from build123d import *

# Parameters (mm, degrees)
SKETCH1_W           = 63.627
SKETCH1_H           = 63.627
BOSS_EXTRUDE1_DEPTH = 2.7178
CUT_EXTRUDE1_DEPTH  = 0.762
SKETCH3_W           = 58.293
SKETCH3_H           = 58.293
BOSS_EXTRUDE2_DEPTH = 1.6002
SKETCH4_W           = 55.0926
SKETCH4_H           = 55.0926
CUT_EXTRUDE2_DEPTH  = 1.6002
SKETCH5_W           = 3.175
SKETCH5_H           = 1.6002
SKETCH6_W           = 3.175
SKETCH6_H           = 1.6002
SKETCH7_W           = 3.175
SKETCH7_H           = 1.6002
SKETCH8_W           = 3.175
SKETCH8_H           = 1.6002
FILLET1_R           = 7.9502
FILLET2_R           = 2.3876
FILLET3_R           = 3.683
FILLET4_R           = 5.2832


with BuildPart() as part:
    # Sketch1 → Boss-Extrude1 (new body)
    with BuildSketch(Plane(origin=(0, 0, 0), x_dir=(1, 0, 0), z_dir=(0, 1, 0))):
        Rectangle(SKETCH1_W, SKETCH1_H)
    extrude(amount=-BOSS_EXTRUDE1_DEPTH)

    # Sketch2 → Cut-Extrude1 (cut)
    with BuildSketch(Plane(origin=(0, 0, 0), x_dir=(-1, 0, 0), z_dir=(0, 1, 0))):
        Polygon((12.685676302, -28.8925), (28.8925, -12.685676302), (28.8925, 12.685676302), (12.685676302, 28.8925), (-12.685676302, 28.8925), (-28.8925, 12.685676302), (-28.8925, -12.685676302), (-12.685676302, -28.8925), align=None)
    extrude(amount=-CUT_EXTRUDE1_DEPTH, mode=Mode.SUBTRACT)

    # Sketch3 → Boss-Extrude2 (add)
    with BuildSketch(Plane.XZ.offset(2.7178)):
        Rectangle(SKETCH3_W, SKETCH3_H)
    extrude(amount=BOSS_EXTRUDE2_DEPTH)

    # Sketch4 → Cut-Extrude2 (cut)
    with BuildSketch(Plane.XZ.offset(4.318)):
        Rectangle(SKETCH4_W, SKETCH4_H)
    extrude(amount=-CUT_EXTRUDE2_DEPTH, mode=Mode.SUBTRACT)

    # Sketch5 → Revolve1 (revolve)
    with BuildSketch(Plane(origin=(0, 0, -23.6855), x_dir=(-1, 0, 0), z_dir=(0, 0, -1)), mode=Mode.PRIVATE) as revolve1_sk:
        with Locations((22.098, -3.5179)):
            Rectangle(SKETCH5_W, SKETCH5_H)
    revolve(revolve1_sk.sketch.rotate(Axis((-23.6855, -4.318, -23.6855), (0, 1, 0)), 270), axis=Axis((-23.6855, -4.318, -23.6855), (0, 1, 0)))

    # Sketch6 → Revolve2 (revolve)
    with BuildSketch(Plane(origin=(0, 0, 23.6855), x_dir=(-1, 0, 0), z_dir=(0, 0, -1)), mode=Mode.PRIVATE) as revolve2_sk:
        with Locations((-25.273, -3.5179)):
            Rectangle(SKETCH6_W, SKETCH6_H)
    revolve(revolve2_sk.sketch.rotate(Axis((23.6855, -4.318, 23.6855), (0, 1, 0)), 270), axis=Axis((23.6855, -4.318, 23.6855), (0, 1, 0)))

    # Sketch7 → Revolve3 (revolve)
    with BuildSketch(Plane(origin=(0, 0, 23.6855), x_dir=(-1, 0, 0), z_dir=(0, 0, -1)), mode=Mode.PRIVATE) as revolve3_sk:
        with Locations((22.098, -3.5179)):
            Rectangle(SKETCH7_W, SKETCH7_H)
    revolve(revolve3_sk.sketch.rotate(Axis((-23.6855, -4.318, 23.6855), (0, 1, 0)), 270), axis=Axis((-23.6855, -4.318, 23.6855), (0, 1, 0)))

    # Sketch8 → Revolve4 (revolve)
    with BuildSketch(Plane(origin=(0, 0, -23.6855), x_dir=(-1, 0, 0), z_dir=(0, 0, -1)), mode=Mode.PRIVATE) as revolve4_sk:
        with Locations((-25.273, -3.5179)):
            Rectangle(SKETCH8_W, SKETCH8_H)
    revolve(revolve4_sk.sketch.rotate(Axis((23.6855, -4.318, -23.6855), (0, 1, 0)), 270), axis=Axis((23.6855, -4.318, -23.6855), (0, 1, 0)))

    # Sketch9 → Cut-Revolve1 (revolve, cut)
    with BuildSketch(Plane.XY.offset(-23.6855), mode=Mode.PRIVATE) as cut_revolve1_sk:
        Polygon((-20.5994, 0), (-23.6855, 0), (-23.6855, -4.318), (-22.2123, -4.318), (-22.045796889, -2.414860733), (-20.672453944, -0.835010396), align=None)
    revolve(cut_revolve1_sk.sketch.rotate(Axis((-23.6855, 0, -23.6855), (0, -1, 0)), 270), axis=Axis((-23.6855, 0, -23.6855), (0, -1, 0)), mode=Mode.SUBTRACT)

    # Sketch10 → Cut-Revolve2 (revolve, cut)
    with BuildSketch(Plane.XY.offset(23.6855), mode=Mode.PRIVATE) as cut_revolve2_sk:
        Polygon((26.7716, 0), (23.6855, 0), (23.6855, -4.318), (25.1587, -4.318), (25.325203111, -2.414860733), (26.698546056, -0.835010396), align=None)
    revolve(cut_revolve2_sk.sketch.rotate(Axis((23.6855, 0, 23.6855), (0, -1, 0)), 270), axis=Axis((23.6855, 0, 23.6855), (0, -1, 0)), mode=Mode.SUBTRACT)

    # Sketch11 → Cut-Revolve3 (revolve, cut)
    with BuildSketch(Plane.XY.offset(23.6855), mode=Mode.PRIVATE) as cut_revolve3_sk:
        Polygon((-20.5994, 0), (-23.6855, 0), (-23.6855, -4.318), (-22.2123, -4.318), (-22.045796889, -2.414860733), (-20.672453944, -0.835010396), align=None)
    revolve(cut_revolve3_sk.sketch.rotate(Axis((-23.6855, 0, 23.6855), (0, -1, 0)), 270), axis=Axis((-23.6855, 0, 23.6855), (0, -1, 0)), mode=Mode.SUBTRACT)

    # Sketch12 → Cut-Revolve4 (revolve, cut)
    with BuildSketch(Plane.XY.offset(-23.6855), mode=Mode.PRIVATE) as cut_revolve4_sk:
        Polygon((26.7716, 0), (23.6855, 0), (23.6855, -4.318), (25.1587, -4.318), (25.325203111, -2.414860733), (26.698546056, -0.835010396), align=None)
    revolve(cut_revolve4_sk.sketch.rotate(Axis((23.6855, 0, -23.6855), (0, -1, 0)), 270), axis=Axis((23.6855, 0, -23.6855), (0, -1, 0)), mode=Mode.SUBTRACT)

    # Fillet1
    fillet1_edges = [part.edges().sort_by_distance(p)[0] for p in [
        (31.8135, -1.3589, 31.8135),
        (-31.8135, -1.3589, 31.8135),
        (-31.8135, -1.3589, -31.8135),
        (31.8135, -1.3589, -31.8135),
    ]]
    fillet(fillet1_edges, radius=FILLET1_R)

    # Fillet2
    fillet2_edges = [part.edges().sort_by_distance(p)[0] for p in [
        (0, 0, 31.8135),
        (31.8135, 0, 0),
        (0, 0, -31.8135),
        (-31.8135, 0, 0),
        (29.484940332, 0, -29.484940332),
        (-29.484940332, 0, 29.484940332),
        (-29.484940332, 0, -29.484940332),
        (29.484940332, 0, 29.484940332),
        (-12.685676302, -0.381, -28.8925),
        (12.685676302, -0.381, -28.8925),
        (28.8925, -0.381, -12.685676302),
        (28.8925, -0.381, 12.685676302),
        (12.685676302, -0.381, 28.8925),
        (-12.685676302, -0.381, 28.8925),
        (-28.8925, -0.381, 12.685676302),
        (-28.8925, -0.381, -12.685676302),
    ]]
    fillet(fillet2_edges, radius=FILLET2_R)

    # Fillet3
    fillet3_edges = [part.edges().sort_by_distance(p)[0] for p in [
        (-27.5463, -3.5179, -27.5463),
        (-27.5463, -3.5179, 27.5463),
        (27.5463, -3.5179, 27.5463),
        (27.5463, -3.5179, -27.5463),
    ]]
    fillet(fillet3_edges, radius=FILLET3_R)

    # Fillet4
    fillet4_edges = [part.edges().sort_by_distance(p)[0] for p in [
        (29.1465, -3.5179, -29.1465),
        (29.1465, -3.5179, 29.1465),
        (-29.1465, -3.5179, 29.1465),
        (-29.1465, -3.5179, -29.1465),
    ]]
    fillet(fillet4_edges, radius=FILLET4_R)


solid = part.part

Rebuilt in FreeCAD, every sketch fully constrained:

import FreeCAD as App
import Part
import Sketcher

V = App.Vector
Q = App.Units.Quantity


def edges_at(feature, points):
    """Names of the edges that pass closest to the given points."""
    edges = feature.Shape.Edges
    near = lambda p: min(range(len(edges)), key=lambda i: edges[i].distToShape(Part.Vertex(*p))[0])
    return sorted({f"Edge{near(p) + 1}" for p in points})

doc = App.newDocument("Part")
params = doc.addObject("Spreadsheet::Sheet", "Params")
for row, (alias, value) in enumerate([
    ("sketch1_width", "2.505 in"),
    ("pad1_length", "0.107 in"),
    ("pocket1_length", "0.03 in"),
    ("sketch3_width", "2.295 in"),
    ("pad2_length", "0.063 in"),
    ("sketch4_width", "2.169 in"),
    ("pocket2_length", "0.063 in"),
    ("sketch5_width", "0.125 in"),
    ("sketch5_height", "0.063 in"),
    ("revolution_angle", "360 deg"),
    ("sketch6_width", "0.125 in"),
    ("sketch6_height", "0.063 in"),
    ("revolution2_angle", "360 deg"),
    ("sketch7_width", "0.125 in"),
    ("sketch7_height", "0.063 in"),
    ("revolution3_angle", "360 deg"),
    ("sketch8_width", "0.125 in"),
    ("sketch8_height", "0.063 in"),
    ("revolution4_angle", "360 deg"),
    ("sketch9_height", "0.17 in"),
    ("sketch9_width", "0.058 in"),
    ("sketch9_length", "0.033 in"),
    ("groove_angle", "360 deg"),
    ("sketch10_height", "0.17 in"),
    ("sketch10_width", "0.058 in"),
    ("sketch10_length", "0.033 in"),
    ("groove2_angle", "360 deg"),
    ("sketch11_height", "0.17 in"),
    ("sketch11_width", "0.058 in"),
    ("sketch11_length", "0.033 in"),
    ("groove3_angle", "360 deg"),
    ("sketch12_height", "0.17 in"),
    ("sketch12_width", "0.058 in"),
    ("sketch12_length", "0.033 in"),
    ("groove4_angle", "360 deg"),
    ("fillet_radius", "0.313 in"),
    ("fillet2_radius", "0.094 in"),
    ("fillet3_radius", "0.145 in"),
    ("fillet4_radius", "0.208 in"),
], start=1):
    params.set(f"A{row}", alias)
    params.set(f"B{row}", "=" + value)
    params.setAlias(f"B{row}", alias)

body = doc.addObject("PartDesign::Body", "Body")

sketch1 = body.newObject("Sketcher::SketchObject", "Sketch")
sketch1.AttachmentSupport = (doc.getObject("XZ_Plane"), [""])
sketch1.MapMode = "FlatFace"
sketch1.addGeometry(Part.LineSegment(V(-31.8135, -31.8135, 0), V(-31.8135, 31.8135, 0)), False)
sketch1.addGeometry(Part.LineSegment(V(-31.8135, 31.8135, 0), V(31.8135, 31.8135, 0)), False)
sketch1.addGeometry(Part.LineSegment(V(31.8135, 31.8135, 0), V(31.8135, -31.8135, 0)), False)
sketch1.addGeometry(Part.LineSegment(V(31.8135, -31.8135, 0), V(-31.8135, -31.8135, 0)), False)
sketch1.addConstraint(Sketcher.Constraint("Coincident", 0, 2, 1, 1))
sketch1.addConstraint(Sketcher.Constraint("Coincident", 1, 2, 2, 1))
sketch1.addConstraint(Sketcher.Constraint("Coincident", 2, 2, 3, 1))
sketch1.addConstraint(Sketcher.Constraint("Coincident", 3, 2, 0, 1))
sketch1.addConstraint(Sketcher.Constraint("Vertical", 0))
sketch1.addConstraint(Sketcher.Constraint("Horizontal", 1))
sketch1.addConstraint(Sketcher.Constraint("Vertical", 2))
sketch1.addConstraint(Sketcher.Constraint("Horizontal", 3))
sketch1.addConstraint(Sketcher.Constraint("Symmetric", 0, 2, 2, 2, -1, 1))
sketch1.addConstraint(Sketcher.Constraint("Equal", 3, 0))
sketch1.addConstraint(Sketcher.Constraint("DistanceX", 1, 1, 1, 2, Q("2.505 in")))
sketch1.setExpression("Constraints[10]", "Params.sketch1_width")
pad1 = body.newObject("PartDesign::Pad", "Pad")
pad1.Profile = sketch1
pad1.setExpression("Length", "Params.pad1_length")

sketch2 = body.newObject("Sketcher::SketchObject", "Sketch001")
sketch2.AttachmentSupport = (doc.getObject("XZ_Plane"), [""])
sketch2.MapMode = "FlatFace"
sketch2.addGeometry(Part.LineSegment(V(-12.685676, -28.8925, 0), V(-28.8925, -12.685676, 0)), False)
sketch2.addGeometry(Part.LineSegment(V(-28.8925, -12.685676, 0), V(-28.8925, 12.685676, 0)), False)
sketch2.addGeometry(Part.LineSegment(V(-28.8925, 12.685676, 0), V(-12.685676, 28.8925, 0)), False)
sketch2.addGeometry(Part.LineSegment(V(-12.685676, 28.8925, 0), V(12.685676, 28.8925, 0)), False)
sketch2.addGeometry(Part.LineSegment(V(12.685676, 28.8925, 0), V(28.8925, 12.685676, 0)), False)
sketch2.addGeometry(Part.LineSegment(V(28.8925, 12.685676, 0), V(28.8925, -12.685676, 0)), False)
sketch2.addGeometry(Part.LineSegment(V(28.8925, -12.685676, 0), V(12.685676, -28.8925, 0)), False)
sketch2.addGeometry(Part.LineSegment(V(12.685676, -28.8925, 0), V(-12.685676, -28.8925, 0)), False)
sketch2.addConstraint(Sketcher.Constraint("Coincident", 0, 2, 1, 1))
sketch2.addConstraint(Sketcher.Constraint("Coincident", 1, 2, 2, 1))
sketch2.addConstraint(Sketcher.Constraint("Coincident", 2, 2, 3, 1))
sketch2.addConstraint(Sketcher.Constraint("Coincident", 3, 2, 4, 1))
sketch2.addConstraint(Sketcher.Constraint("Coincident", 4, 2, 5, 1))
sketch2.addConstraint(Sketcher.Constraint("Coincident", 5, 2, 6, 1))
sketch2.addConstraint(Sketcher.Constraint("Coincident", 6, 2, 7, 1))
sketch2.addConstraint(Sketcher.Constraint("Coincident", 7, 2, 0, 1))
sketch2.addConstraint(Sketcher.Constraint("Vertical", 1))
sketch2.addConstraint(Sketcher.Constraint("Horizontal", 3))
sketch2.addConstraint(Sketcher.Constraint("Vertical", 5))
sketch2.addConstraint(Sketcher.Constraint("Horizontal", 7))
sketch2.addConstraint(Sketcher.Constraint("Symmetric", 0, 2, 4, 2, -1, 1))
sketch2.addConstraint(Sketcher.Constraint("Symmetric", 2, 2, 6, 2, -1, 1))
sketch2.addConstraint(Sketcher.Constraint("Perpendicular", 0, 2))
sketch2.addConstraint(Sketcher.Constraint("Perpendicular", 2, 4))
sketch2.addConstraint(Sketcher.Constraint("Perpendicular", 4, 6))
sketch2.addConstraint(Sketcher.Constraint("Horizontal", 1, 2, 4, 2))
sketch2.addConstraint(Sketcher.Constraint("Vertical", 3, 2, 6, 2))
sketch2.addConstraint(Sketcher.Constraint("Equal", 7, 1))
sketch2.addConstraint(Sketcher.Constraint("DistanceX", 1, 2, 4, 2, Q("2.275 in")))
sketch2.addConstraint(Sketcher.Constraint("Distance", 0, Q("22.91991 mm")))
pocket1 = body.newObject("PartDesign::Pocket", "Pocket")
pocket1.Profile = sketch2
pocket1.setExpression("Length", "Params.pocket1_length")
pocket1.Reversed = True

sketch3 = body.newObject("Sketcher::SketchObject", "Sketch002")
sketch3.AttachmentSupport = (doc.getObject("XZ_Plane"), [""])
sketch3.MapMode = "FlatFace"
sketch3.AttachmentOffset = App.Placement(V(0, 0, 0.107 * 25.4), App.Rotation())
sketch3.addGeometry(Part.LineSegment(V(-29.1465, 29.1465, 0), V(-29.1465, -29.1465, 0)), False)
sketch3.addGeometry(Part.LineSegment(V(-29.1465, -29.1465, 0), V(29.1465, -29.1465, 0)), False)
sketch3.addGeometry(Part.LineSegment(V(29.1465, -29.1465, 0), V(29.1465, 29.1465, 0)), False)
sketch3.addGeometry(Part.LineSegment(V(29.1465, 29.1465, 0), V(-29.1465, 29.1465, 0)), False)
sketch3.addConstraint(Sketcher.Constraint("Coincident", 0, 2, 1, 1))
sketch3.addConstraint(Sketcher.Constraint("Coincident", 1, 2, 2, 1))
sketch3.addConstraint(Sketcher.Constraint("Coincident", 2, 2, 3, 1))
sketch3.addConstraint(Sketcher.Constraint("Coincident", 3, 2, 0, 1))
sketch3.addConstraint(Sketcher.Constraint("Vertical", 0))
sketch3.addConstraint(Sketcher.Constraint("Horizontal", 1))
sketch3.addConstraint(Sketcher.Constraint("Vertical", 2))
sketch3.addConstraint(Sketcher.Constraint("Horizontal", 3))
sketch3.addConstraint(Sketcher.Constraint("Symmetric", 0, 2, 2, 2, -1, 1))
sketch3.addConstraint(Sketcher.Constraint("Equal", 3, 0))
sketch3.addConstraint(Sketcher.Constraint("DistanceX", 1, 1, 1, 2, Q("2.295 in")))
sketch3.setExpression("Constraints[10]", "Params.sketch3_width")
pad2 = body.newObject("PartDesign::Pad", "Pad001")
pad2.Profile = sketch3
pad2.setExpression("Length", "Params.pad2_length")

sketch4 = body.newObject("Sketcher::SketchObject", "Sketch003")
sketch4.AttachmentSupport = (doc.getObject("XZ_Plane"), [""])
sketch4.MapMode = "FlatFace"
sketch4.AttachmentOffset = App.Placement(V(0, 0, 0.17 * 25.4), App.Rotation())
sketch4.addGeometry(Part.LineSegment(V(-27.5463, 27.5463, 0), V(-27.5463, -27.5463, 0)), False)
sketch4.addGeometry(Part.LineSegment(V(-27.5463, -27.5463, 0), V(27.5463, -27.5463, 0)), False)
sketch4.addGeometry(Part.LineSegment(V(27.5463, -27.5463, 0), V(27.5463, 27.5463, 0)), False)
sketch4.addGeometry(Part.LineSegment(V(27.5463, 27.5463, 0), V(-27.5463, 27.5463, 0)), False)
sketch4.addConstraint(Sketcher.Constraint("Coincident", 0, 2, 1, 1))
sketch4.addConstraint(Sketcher.Constraint("Coincident", 1, 2, 2, 1))
sketch4.addConstraint(Sketcher.Constraint("Coincident", 2, 2, 3, 1))
sketch4.addConstraint(Sketcher.Constraint("Coincident", 3, 2, 0, 1))
sketch4.addConstraint(Sketcher.Constraint("Vertical", 0))
sketch4.addConstraint(Sketcher.Constraint("Horizontal", 1))
sketch4.addConstraint(Sketcher.Constraint("Vertical", 2))
sketch4.addConstraint(Sketcher.Constraint("Horizontal", 3))
sketch4.addConstraint(Sketcher.Constraint("Symmetric", 0, 2, 2, 2, -1, 1))
sketch4.addConstraint(Sketcher.Constraint("Equal", 3, 0))
sketch4.addConstraint(Sketcher.Constraint("DistanceX", 1, 1, 1, 2, Q("2.169 in")))
sketch4.setExpression("Constraints[10]", "Params.sketch4_width")
pocket2 = body.newObject("PartDesign::Pocket", "Pocket001")
pocket2.Profile = sketch4
pocket2.setExpression("Length", "Params.pocket2_length")

sketch5 = body.newObject("Sketcher::SketchObject", "Sketch004")
sketch5.AttachmentSupport = (doc.getObject("XY_Plane"), [""])
sketch5.MapMode = "FlatFace"
sketch5.AttachmentOffset = App.Placement(V(0, 0, -0.9325 * 25.4), App.Rotation())
sketch5.addGeometry(Part.LineSegment(V(-20.5105, -2.7178, 0), V(-20.5105, -4.318, 0)), False)
sketch5.addGeometry(Part.LineSegment(V(-20.5105, -4.318, 0), V(-23.6855, -4.318, 0)), False)
sketch5.addGeometry(Part.LineSegment(V(-23.6855, -4.318, 0), V(-23.6855, -2.7178, 0)), False)
sketch5.addGeometry(Part.LineSegment(V(-23.6855, -2.7178, 0), V(-20.5105, -2.7178, 0)), False)
sketch5.addGeometry(Part.LineSegment(V(-23.6855, -4.318, 0), V(-23.6855, -2.7178, 0)), True)
sketch5.addConstraint(Sketcher.Constraint("Coincident", 0, 2, 1, 1))
sketch5.addConstraint(Sketcher.Constraint("Coincident", 1, 2, 2, 1))
sketch5.addConstraint(Sketcher.Constraint("Coincident", 2, 2, 3, 1))
sketch5.addConstraint(Sketcher.Constraint("Coincident", 3, 2, 0, 1))
sketch5.addConstraint(Sketcher.Constraint("Vertical", 0))
sketch5.addConstraint(Sketcher.Constraint("Horizontal", 1))
sketch5.addConstraint(Sketcher.Constraint("Vertical", 2))
sketch5.addConstraint(Sketcher.Constraint("Horizontal", 3))
sketch5.addConstraint(Sketcher.Constraint("Vertical", 4))
sketch5.addConstraint(Sketcher.Constraint("Coincident", 4, 1, 1, 2))
sketch5.addConstraint(Sketcher.Constraint("Horizontal", 3, 2, 4, 2))
sketch5.addConstraint(Sketcher.Constraint("DistanceX", 1, 2, 1, 1, Q("0.125 in")))
sketch5.addConstraint(Sketcher.Constraint("DistanceY", 0, 2, 0, 1, Q("0.063 in")))
sketch5.addConstraint(Sketcher.Constraint("DistanceY", 0, 2, -1, 1, Q("0.17 in")))
sketch5.addConstraint(Sketcher.Constraint("DistanceX", 0, 2, -1, 1, Q("0.8075 in")))
sketch5.setExpression("Constraints[11]", "Params.sketch5_width")
sketch5.setExpression("Constraints[12]", "Params.sketch5_height")
revolution = body.newObject("PartDesign::Revolution", "Revolution")
revolution.Profile = sketch5
revolution.ReferenceAxis = (sketch5, ["Axis0"])
revolution.setExpression("Angle", "Params.revolution_angle")

sketch6 = body.newObject("Sketcher::SketchObject", "Sketch005")
sketch6.AttachmentSupport = (doc.getObject("XY_Plane"), [""])
sketch6.MapMode = "FlatFace"
sketch6.AttachmentOffset = App.Placement(V(0, 0, 0.9325 * 25.4), App.Rotation())
sketch6.addGeometry(Part.LineSegment(V(26.8605, -2.7178, 0), V(26.8605, -4.318, 0)), False)
sketch6.addGeometry(Part.LineSegment(V(26.8605, -4.318, 0), V(23.6855, -4.318, 0)), False)
sketch6.addGeometry(Part.LineSegment(V(23.6855, -4.318, 0), V(23.6855, -2.7178, 0)), False)
sketch6.addGeometry(Part.LineSegment(V(23.6855, -2.7178, 0), V(26.8605, -2.7178, 0)), False)
sketch6.addGeometry(Part.LineSegment(V(23.6855, -4.318, 0), V(23.6855, -2.7178, 0)), True)
sketch6.addConstraint(Sketcher.Constraint("Coincident", 0, 2, 1, 1))
sketch6.addConstraint(Sketcher.Constraint("Coincident", 1, 2, 2, 1))
sketch6.addConstraint(Sketcher.Constraint("Coincident", 2, 2, 3, 1))
sketch6.addConstraint(Sketcher.Constraint("Coincident", 3, 2, 0, 1))
sketch6.addConstraint(Sketcher.Constraint("Vertical", 0))
sketch6.addConstraint(Sketcher.Constraint("Horizontal", 1))
sketch6.addConstraint(Sketcher.Constraint("Vertical", 2))
sketch6.addConstraint(Sketcher.Constraint("Horizontal", 3))
sketch6.addConstraint(Sketcher.Constraint("Vertical", 4))
sketch6.addConstraint(Sketcher.Constraint("Coincident", 4, 1, 1, 2))
sketch6.addConstraint(Sketcher.Constraint("Horizontal", 3, 2, 4, 2))
sketch6.addConstraint(Sketcher.Constraint("DistanceX", 1, 2, 1, 1, Q("0.125 in")))
sketch6.addConstraint(Sketcher.Constraint("DistanceY", 0, 2, 0, 1, Q("0.063 in")))
sketch6.addConstraint(Sketcher.Constraint("DistanceY", 0, 2, -1, 1, Q("0.17 in")))
sketch6.addConstraint(Sketcher.Constraint("DistanceX", -1, 1, 0, 2, Q("1.0575 in")))
sketch6.setExpression("Constraints[11]", "Params.sketch6_width")
sketch6.setExpression("Constraints[12]", "Params.sketch6_height")
revolution2 = body.newObject("PartDesign::Revolution", "Revolution001")
revolution2.Profile = sketch6
revolution2.ReferenceAxis = (sketch6, ["Axis0"])
revolution2.setExpression("Angle", "Params.revolution2_angle")

sketch7 = body.newObject("Sketcher::SketchObject", "Sketch006")
sketch7.AttachmentSupport = (doc.getObject("XY_Plane"), [""])
sketch7.MapMode = "FlatFace"
sketch7.AttachmentOffset = App.Placement(V(0, 0, 0.9325 * 25.4), App.Rotation())
sketch7.addGeometry(Part.LineSegment(V(-20.5105, -2.7178, 0), V(-20.5105, -4.318, 0)), False)
sketch7.addGeometry(Part.LineSegment(V(-20.5105, -4.318, 0), V(-23.6855, -4.318, 0)), False)
sketch7.addGeometry(Part.LineSegment(V(-23.6855, -4.318, 0), V(-23.6855, -2.7178, 0)), False)
sketch7.addGeometry(Part.LineSegment(V(-23.6855, -2.7178, 0), V(-20.5105, -2.7178, 0)), False)
sketch7.addGeometry(Part.LineSegment(V(-23.6855, -4.318, 0), V(-23.6855, -2.7178, 0)), True)
sketch7.addConstraint(Sketcher.Constraint("Coincident", 0, 2, 1, 1))
sketch7.addConstraint(Sketcher.Constraint("Coincident", 1, 2, 2, 1))
sketch7.addConstraint(Sketcher.Constraint("Coincident", 2, 2, 3, 1))
sketch7.addConstraint(Sketcher.Constraint("Coincident", 3, 2, 0, 1))
sketch7.addConstraint(Sketcher.Constraint("Vertical", 0))
sketch7.addConstraint(Sketcher.Constraint("Horizontal", 1))
sketch7.addConstraint(Sketcher.Constraint("Vertical", 2))
sketch7.addConstraint(Sketcher.Constraint("Horizontal", 3))
sketch7.addConstraint(Sketcher.Constraint("Vertical", 4))
sketch7.addConstraint(Sketcher.Constraint("Coincident", 4, 1, 1, 2))
sketch7.addConstraint(Sketcher.Constraint("Horizontal", 3, 2, 4, 2))
sketch7.addConstraint(Sketcher.Constraint("DistanceX", 1, 2, 1, 1, Q("0.125 in")))
sketch7.addConstraint(Sketcher.Constraint("DistanceY", 0, 2, 0, 1, Q("0.063 in")))
sketch7.addConstraint(Sketcher.Constraint("DistanceY", 0, 2, -1, 1, Q("0.17 in")))
sketch7.addConstraint(Sketcher.Constraint("DistanceX", 0, 2, -1, 1, Q("0.8075 in")))
sketch7.setExpression("Constraints[11]", "Params.sketch7_width")
sketch7.setExpression("Constraints[12]", "Params.sketch7_height")
revolution3 = body.newObject("PartDesign::Revolution", "Revolution002")
revolution3.Profile = sketch7
revolution3.ReferenceAxis = (sketch7, ["Axis0"])
revolution3.setExpression("Angle", "Params.revolution3_angle")

sketch8 = body.newObject("Sketcher::SketchObject", "Sketch007")
sketch8.AttachmentSupport = (doc.getObject("XY_Plane"), [""])
sketch8.MapMode = "FlatFace"
sketch8.AttachmentOffset = App.Placement(V(0, 0, -0.9325 * 25.4), App.Rotation())
sketch8.addGeometry(Part.LineSegment(V(26.8605, -2.7178, 0), V(26.8605, -4.318, 0)), False)
sketch8.addGeometry(Part.LineSegment(V(26.8605, -4.318, 0), V(23.6855, -4.318, 0)), False)
sketch8.addGeometry(Part.LineSegment(V(23.6855, -4.318, 0), V(23.6855, -2.7178, 0)), False)
sketch8.addGeometry(Part.LineSegment(V(23.6855, -2.7178, 0), V(26.8605, -2.7178, 0)), False)
sketch8.addGeometry(Part.LineSegment(V(23.6855, -4.318, 0), V(23.6855, -2.7178, 0)), True)
sketch8.addConstraint(Sketcher.Constraint("Coincident", 0, 2, 1, 1))
sketch8.addConstraint(Sketcher.Constraint("Coincident", 1, 2, 2, 1))
sketch8.addConstraint(Sketcher.Constraint("Coincident", 2, 2, 3, 1))
sketch8.addConstraint(Sketcher.Constraint("Coincident", 3, 2, 0, 1))
sketch8.addConstraint(Sketcher.Constraint("Vertical", 0))
sketch8.addConstraint(Sketcher.Constraint("Horizontal", 1))
sketch8.addConstraint(Sketcher.Constraint("Vertical", 2))
sketch8.addConstraint(Sketcher.Constraint("Horizontal", 3))
sketch8.addConstraint(Sketcher.Constraint("Vertical", 4))
sketch8.addConstraint(Sketcher.Constraint("Coincident", 4, 1, 1, 2))
sketch8.addConstraint(Sketcher.Constraint("Horizontal", 3, 2, 4, 2))
sketch8.addConstraint(Sketcher.Constraint("DistanceX", 1, 2, 1, 1, Q("0.125 in")))
sketch8.addConstraint(Sketcher.Constraint("DistanceY", 0, 2, 0, 1, Q("0.063 in")))
sketch8.addConstraint(Sketcher.Constraint("DistanceY", 0, 2, -1, 1, Q("0.17 in")))
sketch8.addConstraint(Sketcher.Constraint("DistanceX", -1, 1, 0, 2, Q("1.0575 in")))
sketch8.setExpression("Constraints[11]", "Params.sketch8_width")
sketch8.setExpression("Constraints[12]", "Params.sketch8_height")
revolution4 = body.newObject("PartDesign::Revolution", "Revolution003")
revolution4.Profile = sketch8
revolution4.ReferenceAxis = (sketch8, ["Axis0"])
revolution4.setExpression("Angle", "Params.revolution4_angle")

sketch9 = body.newObject("Sketcher::SketchObject", "Sketch008")
sketch9.AttachmentSupport = (doc.getObject("XY_Plane"), [""])
sketch9.MapMode = "FlatFace"
sketch9.AttachmentOffset = App.Placement(V(0, 0, -0.9325 * 25.4), App.Rotation())
sketch9.addGeometry(Part.LineSegment(V(-20.5994, 0, 0), V(-23.6855, 0, 0)), False)
sketch9.addGeometry(Part.LineSegment(V(-23.6855, 0, 0), V(-23.6855, -4.318, 0)), False)
sketch9.addGeometry(Part.LineSegment(V(-23.6855, -4.318, 0), V(-22.2123, -4.318, 0)), False)
sketch9.addGeometry(Part.LineSegment(V(-22.2123, -4.318, 0), V(-22.045797, -2.414861, 0)), False)
sketch9.addGeometry(Part.LineSegment(V(-22.045797, -2.414861, 0), V(-20.672454, -0.83501, 0)), False)
sketch9.addGeometry(Part.LineSegment(V(-20.672454, -0.83501, 0), V(-20.5994, 0, 0)), False)
sketch9.addGeometry(Part.LineSegment(V(-23.6855, 0, 0), V(-23.6855, -4.318, 0)), True)
sketch9.addConstraint(Sketcher.Constraint("Coincident", 0, 2, 1, 1))
sketch9.addConstraint(Sketcher.Constraint("Coincident", 1, 2, 2, 1))
sketch9.addConstraint(Sketcher.Constraint("Coincident", 2, 2, 3, 1))
sketch9.addConstraint(Sketcher.Constraint("Coincident", 3, 2, 4, 1))
sketch9.addConstraint(Sketcher.Constraint("Coincident", 4, 2, 5, 1))
sketch9.addConstraint(Sketcher.Constraint("Coincident", 5, 2, 0, 1))
sketch9.addConstraint(Sketcher.Constraint("Horizontal", 0))
sketch9.addConstraint(Sketcher.Constraint("Vertical", 1))
sketch9.addConstraint(Sketcher.Constraint("Horizontal", 2))
sketch9.addConstraint(Sketcher.Constraint("Vertical", 6))
sketch9.addConstraint(Sketcher.Constraint("Coincident", 6, 1, 0, 2))
sketch9.addConstraint(Sketcher.Constraint("PointOnObject", 0, 2, -1))
sketch9.addConstraint(Sketcher.Constraint("Parallel", 3, 5))
sketch9.addConstraint(Sketcher.Constraint("Horizontal", 2, 2, 6, 2))
sketch9.addConstraint(Sketcher.Constraint("Angle", 3, Q("85 deg")))
sketch9.addConstraint(Sketcher.Constraint("Angle", 4, Q("49 deg")))
sketch9.addConstraint(Sketcher.Constraint("DistanceY", 1, 2, 1, 1, Q("0.17 in")))
sketch9.addConstraint(Sketcher.Constraint("DistanceX", 2, 1, 2, 2, Q("0.058 in")))
sketch9.addConstraint(Sketcher.Constraint("Distance", 5, Q("0.033 in")))
sketch9.addConstraint(Sketcher.Constraint("DistanceX", 0, 2, 0, 1, Q("0.1215 in")))
sketch9.addConstraint(Sketcher.Constraint("DistanceX", 5, 2, -1, 1, Q("0.811 in")))
sketch9.setExpression("Constraints[16]", "Params.sketch9_height")
sketch9.setExpression("Constraints[17]", "Params.sketch9_width")
sketch9.setExpression("Constraints[18]", "Params.sketch9_length")
groove = body.newObject("PartDesign::Groove", "Groove")
groove.Profile = sketch9
groove.ReferenceAxis = (sketch9, ["Axis0"])
groove.setExpression("Angle", "Params.groove_angle")

sketch10 = body.newObject("Sketcher::SketchObject", "Sketch009")
sketch10.AttachmentSupport = (doc.getObject("XY_Plane"), [""])
sketch10.MapMode = "FlatFace"
sketch10.AttachmentOffset = App.Placement(V(0, 0, 0.9325 * 25.4), App.Rotation())
sketch10.addGeometry(Part.LineSegment(V(26.7716, 0, 0), V(23.6855, 0, 0)), False)
sketch10.addGeometry(Part.LineSegment(V(23.6855, 0, 0), V(23.6855, -4.318, 0)), False)
sketch10.addGeometry(Part.LineSegment(V(23.6855, -4.318, 0), V(25.1587, -4.318, 0)), False)
sketch10.addGeometry(Part.LineSegment(V(25.1587, -4.318, 0), V(25.325203, -2.414861, 0)), False)
sketch10.addGeometry(Part.LineSegment(V(25.325203, -2.414861, 0), V(26.698546, -0.83501, 0)), False)
sketch10.addGeometry(Part.LineSegment(V(26.698546, -0.83501, 0), V(26.7716, 0, 0)), False)
sketch10.addGeometry(Part.LineSegment(V(23.6855, 0, 0), V(23.6855, -4.318, 0)), True)
sketch10.addConstraint(Sketcher.Constraint("Coincident", 0, 2, 1, 1))
sketch10.addConstraint(Sketcher.Constraint("Coincident", 1, 2, 2, 1))
sketch10.addConstraint(Sketcher.Constraint("Coincident", 2, 2, 3, 1))
sketch10.addConstraint(Sketcher.Constraint("Coincident", 3, 2, 4, 1))
sketch10.addConstraint(Sketcher.Constraint("Coincident", 4, 2, 5, 1))
sketch10.addConstraint(Sketcher.Constraint("Coincident", 5, 2, 0, 1))
sketch10.addConstraint(Sketcher.Constraint("Horizontal", 0))
sketch10.addConstraint(Sketcher.Constraint("Vertical", 1))
sketch10.addConstraint(Sketcher.Constraint("Horizontal", 2))
sketch10.addConstraint(Sketcher.Constraint("Vertical", 6))
sketch10.addConstraint(Sketcher.Constraint("Coincident", 6, 1, 0, 2))
sketch10.addConstraint(Sketcher.Constraint("PointOnObject", 0, 2, -1))
sketch10.addConstraint(Sketcher.Constraint("Parallel", 3, 5))
sketch10.addConstraint(Sketcher.Constraint("Horizontal", 2, 2, 6, 2))
sketch10.addConstraint(Sketcher.Constraint("Angle", 3, Q("85 deg")))
sketch10.addConstraint(Sketcher.Constraint("Angle", 4, Q("49 deg")))
sketch10.addConstraint(Sketcher.Constraint("DistanceY", 1, 2, 1, 1, Q("0.17 in")))
sketch10.addConstraint(Sketcher.Constraint("DistanceX", 2, 1, 2, 2, Q("0.058 in")))
sketch10.addConstraint(Sketcher.Constraint("Distance", 5, Q("0.033 in")))
sketch10.addConstraint(Sketcher.Constraint("DistanceX", 0, 2, 0, 1, Q("0.1215 in")))
sketch10.addConstraint(Sketcher.Constraint("DistanceX", -1, 1, 5, 2, Q("1.054 in")))
sketch10.setExpression("Constraints[16]", "Params.sketch10_height")
sketch10.setExpression("Constraints[17]", "Params.sketch10_width")
sketch10.setExpression("Constraints[18]", "Params.sketch10_length")
groove2 = body.newObject("PartDesign::Groove", "Groove001")
groove2.Profile = sketch10
groove2.ReferenceAxis = (sketch10, ["Axis0"])
groove2.setExpression("Angle", "Params.groove2_angle")

sketch11 = body.newObject("Sketcher::SketchObject", "Sketch010")
sketch11.AttachmentSupport = (doc.getObject("XY_Plane"), [""])
sketch11.MapMode = "FlatFace"
sketch11.AttachmentOffset = App.Placement(V(0, 0, 0.9325 * 25.4), App.Rotation())
sketch11.addGeometry(Part.LineSegment(V(-20.5994, 0, 0), V(-23.6855, 0, 0)), False)
sketch11.addGeometry(Part.LineSegment(V(-23.6855, 0, 0), V(-23.6855, -4.318, 0)), False)
sketch11.addGeometry(Part.LineSegment(V(-23.6855, -4.318, 0), V(-22.2123, -4.318, 0)), False)
sketch11.addGeometry(Part.LineSegment(V(-22.2123, -4.318, 0), V(-22.045797, -2.414861, 0)), False)
sketch11.addGeometry(Part.LineSegment(V(-22.045797, -2.414861, 0), V(-20.672454, -0.83501, 0)), False)
sketch11.addGeometry(Part.LineSegment(V(-20.672454, -0.83501, 0), V(-20.5994, 0, 0)), False)
sketch11.addGeometry(Part.LineSegment(V(-23.6855, 0, 0), V(-23.6855, -4.318, 0)), True)
sketch11.addConstraint(Sketcher.Constraint("Coincident", 0, 2, 1, 1))
sketch11.addConstraint(Sketcher.Constraint("Coincident", 1, 2, 2, 1))
sketch11.addConstraint(Sketcher.Constraint("Coincident", 2, 2, 3, 1))
sketch11.addConstraint(Sketcher.Constraint("Coincident", 3, 2, 4, 1))
sketch11.addConstraint(Sketcher.Constraint("Coincident", 4, 2, 5, 1))
sketch11.addConstraint(Sketcher.Constraint("Coincident", 5, 2, 0, 1))
sketch11.addConstraint(Sketcher.Constraint("Horizontal", 0))
sketch11.addConstraint(Sketcher.Constraint("Vertical", 1))
sketch11.addConstraint(Sketcher.Constraint("Horizontal", 2))
sketch11.addConstraint(Sketcher.Constraint("Vertical", 6))
sketch11.addConstraint(Sketcher.Constraint("Coincident", 6, 1, 0, 2))
sketch11.addConstraint(Sketcher.Constraint("PointOnObject", 0, 2, -1))
sketch11.addConstraint(Sketcher.Constraint("Parallel", 3, 5))
sketch11.addConstraint(Sketcher.Constraint("Horizontal", 2, 2, 6, 2))
sketch11.addConstraint(Sketcher.Constraint("Angle", 3, Q("85 deg")))
sketch11.addConstraint(Sketcher.Constraint("Angle", 4, Q("49 deg")))
sketch11.addConstraint(Sketcher.Constraint("DistanceY", 1, 2, 1, 1, Q("0.17 in")))
sketch11.addConstraint(Sketcher.Constraint("DistanceX", 2, 1, 2, 2, Q("0.058 in")))
sketch11.addConstraint(Sketcher.Constraint("Distance", 5, Q("0.033 in")))
sketch11.addConstraint(Sketcher.Constraint("DistanceX", 0, 2, 0, 1, Q("0.1215 in")))
sketch11.addConstraint(Sketcher.Constraint("DistanceX", 5, 2, -1, 1, Q("0.811 in")))
sketch11.setExpression("Constraints[16]", "Params.sketch11_height")
sketch11.setExpression("Constraints[17]", "Params.sketch11_width")
sketch11.setExpression("Constraints[18]", "Params.sketch11_length")
groove3 = body.newObject("PartDesign::Groove", "Groove002")
groove3.Profile = sketch11
groove3.ReferenceAxis = (sketch11, ["Axis0"])
groove3.setExpression("Angle", "Params.groove3_angle")

sketch12 = body.newObject("Sketcher::SketchObject", "Sketch011")
sketch12.AttachmentSupport = (doc.getObject("XY_Plane"), [""])
sketch12.MapMode = "FlatFace"
sketch12.AttachmentOffset = App.Placement(V(0, 0, -0.9325 * 25.4), App.Rotation())
sketch12.addGeometry(Part.LineSegment(V(26.7716, 0, 0), V(23.6855, 0, 0)), False)
sketch12.addGeometry(Part.LineSegment(V(23.6855, 0, 0), V(23.6855, -4.318, 0)), False)
sketch12.addGeometry(Part.LineSegment(V(23.6855, -4.318, 0), V(25.1587, -4.318, 0)), False)
sketch12.addGeometry(Part.LineSegment(V(25.1587, -4.318, 0), V(25.325203, -2.414861, 0)), False)
sketch12.addGeometry(Part.LineSegment(V(25.325203, -2.414861, 0), V(26.698546, -0.83501, 0)), False)
sketch12.addGeometry(Part.LineSegment(V(26.698546, -0.83501, 0), V(26.7716, 0, 0)), False)
sketch12.addGeometry(Part.LineSegment(V(23.6855, 0, 0), V(23.6855, -4.318, 0)), True)
sketch12.addConstraint(Sketcher.Constraint("Coincident", 0, 2, 1, 1))
sketch12.addConstraint(Sketcher.Constraint("Coincident", 1, 2, 2, 1))
sketch12.addConstraint(Sketcher.Constraint("Coincident", 2, 2, 3, 1))
sketch12.addConstraint(Sketcher.Constraint("Coincident", 3, 2, 4, 1))
sketch12.addConstraint(Sketcher.Constraint("Coincident", 4, 2, 5, 1))
sketch12.addConstraint(Sketcher.Constraint("Coincident", 5, 2, 0, 1))
sketch12.addConstraint(Sketcher.Constraint("Horizontal", 0))
sketch12.addConstraint(Sketcher.Constraint("Vertical", 1))
sketch12.addConstraint(Sketcher.Constraint("Horizontal", 2))
sketch12.addConstraint(Sketcher.Constraint("Vertical", 6))
sketch12.addConstraint(Sketcher.Constraint("Coincident", 6, 1, 0, 2))
sketch12.addConstraint(Sketcher.Constraint("PointOnObject", 0, 2, -1))
sketch12.addConstraint(Sketcher.Constraint("Parallel", 3, 5))
sketch12.addConstraint(Sketcher.Constraint("Horizontal", 2, 2, 6, 2))
sketch12.addConstraint(Sketcher.Constraint("Angle", 3, Q("85 deg")))
sketch12.addConstraint(Sketcher.Constraint("Angle", 4, Q("49 deg")))
sketch12.addConstraint(Sketcher.Constraint("DistanceY", 1, 2, 1, 1, Q("0.17 in")))
sketch12.addConstraint(Sketcher.Constraint("DistanceX", 2, 1, 2, 2, Q("0.058 in")))
sketch12.addConstraint(Sketcher.Constraint("Distance", 5, Q("0.033 in")))
sketch12.addConstraint(Sketcher.Constraint("DistanceX", 0, 2, 0, 1, Q("0.1215 in")))
sketch12.addConstraint(Sketcher.Constraint("DistanceX", -1, 1, 5, 2, Q("1.054 in")))
sketch12.setExpression("Constraints[16]", "Params.sketch12_height")
sketch12.setExpression("Constraints[17]", "Params.sketch12_width")
sketch12.setExpression("Constraints[18]", "Params.sketch12_length")
groove4 = body.newObject("PartDesign::Groove", "Groove003")
groove4.Profile = sketch12
groove4.ReferenceAxis = (sketch12, ["Axis0"])
groove4.setExpression("Angle", "Params.groove4_angle")
doc.recompute()

fillet = body.newObject("PartDesign::Fillet", "Fillet")
fillet.Base = (groove4, edges_at(groove4, [
    (31.814, -1.359, 31.814),
    (-31.814, -1.359, 31.814),
    (-31.814, -1.359, -31.814),
    (31.814, -1.359, -31.814),
]))
fillet.setExpression("Radius", "Params.fillet_radius")
doc.recompute()

fillet2 = body.newObject("PartDesign::Fillet", "Fillet001")
fillet2.Base = (fillet, edges_at(fillet, [
    (0, 0, 31.814),
    (31.814, 0, 0),
    (0, 0, -31.814),
    (-31.814, 0, 0),
    (29.485, 0, -29.485),
    (-29.485, 0, 29.485),
    (-29.485, 0, -29.485),
    (29.485, 0, 29.485),
    (-12.686, -0.381, -28.892),
    (12.686, -0.381, -28.892),
    (28.892, -0.381, -12.686),
    (28.892, -0.381, 12.686),
    (12.686, -0.381, 28.892),
    (-12.686, -0.381, 28.892),
    (-28.892, -0.381, 12.686),
    (-28.892, -0.381, -12.686),
]))
fillet2.setExpression("Radius", "Params.fillet2_radius")
doc.recompute()

fillet3 = body.newObject("PartDesign::Fillet", "Fillet002")
fillet3.Base = (fillet2, edges_at(fillet2, [
    (-27.546, -3.518, -27.546),
    (-27.546, -3.518, 27.546),
    (27.546, -3.518, 27.546),
    (27.546, -3.518, -27.546),
]))
fillet3.setExpression("Radius", "Params.fillet3_radius")
doc.recompute()

fillet4 = body.newObject("PartDesign::Fillet", "Fillet003")
fillet4.Base = (fillet3, edges_at(fillet3, [
    (29.146, -3.518, -29.146),
    (29.146, -3.518, 29.146),
    (-29.146, -3.518, 29.146),
    (-29.146, -3.518, -29.146),
]))
fillet4.setExpression("Radius", "Params.fillet4_radius")

doc.recompute()
